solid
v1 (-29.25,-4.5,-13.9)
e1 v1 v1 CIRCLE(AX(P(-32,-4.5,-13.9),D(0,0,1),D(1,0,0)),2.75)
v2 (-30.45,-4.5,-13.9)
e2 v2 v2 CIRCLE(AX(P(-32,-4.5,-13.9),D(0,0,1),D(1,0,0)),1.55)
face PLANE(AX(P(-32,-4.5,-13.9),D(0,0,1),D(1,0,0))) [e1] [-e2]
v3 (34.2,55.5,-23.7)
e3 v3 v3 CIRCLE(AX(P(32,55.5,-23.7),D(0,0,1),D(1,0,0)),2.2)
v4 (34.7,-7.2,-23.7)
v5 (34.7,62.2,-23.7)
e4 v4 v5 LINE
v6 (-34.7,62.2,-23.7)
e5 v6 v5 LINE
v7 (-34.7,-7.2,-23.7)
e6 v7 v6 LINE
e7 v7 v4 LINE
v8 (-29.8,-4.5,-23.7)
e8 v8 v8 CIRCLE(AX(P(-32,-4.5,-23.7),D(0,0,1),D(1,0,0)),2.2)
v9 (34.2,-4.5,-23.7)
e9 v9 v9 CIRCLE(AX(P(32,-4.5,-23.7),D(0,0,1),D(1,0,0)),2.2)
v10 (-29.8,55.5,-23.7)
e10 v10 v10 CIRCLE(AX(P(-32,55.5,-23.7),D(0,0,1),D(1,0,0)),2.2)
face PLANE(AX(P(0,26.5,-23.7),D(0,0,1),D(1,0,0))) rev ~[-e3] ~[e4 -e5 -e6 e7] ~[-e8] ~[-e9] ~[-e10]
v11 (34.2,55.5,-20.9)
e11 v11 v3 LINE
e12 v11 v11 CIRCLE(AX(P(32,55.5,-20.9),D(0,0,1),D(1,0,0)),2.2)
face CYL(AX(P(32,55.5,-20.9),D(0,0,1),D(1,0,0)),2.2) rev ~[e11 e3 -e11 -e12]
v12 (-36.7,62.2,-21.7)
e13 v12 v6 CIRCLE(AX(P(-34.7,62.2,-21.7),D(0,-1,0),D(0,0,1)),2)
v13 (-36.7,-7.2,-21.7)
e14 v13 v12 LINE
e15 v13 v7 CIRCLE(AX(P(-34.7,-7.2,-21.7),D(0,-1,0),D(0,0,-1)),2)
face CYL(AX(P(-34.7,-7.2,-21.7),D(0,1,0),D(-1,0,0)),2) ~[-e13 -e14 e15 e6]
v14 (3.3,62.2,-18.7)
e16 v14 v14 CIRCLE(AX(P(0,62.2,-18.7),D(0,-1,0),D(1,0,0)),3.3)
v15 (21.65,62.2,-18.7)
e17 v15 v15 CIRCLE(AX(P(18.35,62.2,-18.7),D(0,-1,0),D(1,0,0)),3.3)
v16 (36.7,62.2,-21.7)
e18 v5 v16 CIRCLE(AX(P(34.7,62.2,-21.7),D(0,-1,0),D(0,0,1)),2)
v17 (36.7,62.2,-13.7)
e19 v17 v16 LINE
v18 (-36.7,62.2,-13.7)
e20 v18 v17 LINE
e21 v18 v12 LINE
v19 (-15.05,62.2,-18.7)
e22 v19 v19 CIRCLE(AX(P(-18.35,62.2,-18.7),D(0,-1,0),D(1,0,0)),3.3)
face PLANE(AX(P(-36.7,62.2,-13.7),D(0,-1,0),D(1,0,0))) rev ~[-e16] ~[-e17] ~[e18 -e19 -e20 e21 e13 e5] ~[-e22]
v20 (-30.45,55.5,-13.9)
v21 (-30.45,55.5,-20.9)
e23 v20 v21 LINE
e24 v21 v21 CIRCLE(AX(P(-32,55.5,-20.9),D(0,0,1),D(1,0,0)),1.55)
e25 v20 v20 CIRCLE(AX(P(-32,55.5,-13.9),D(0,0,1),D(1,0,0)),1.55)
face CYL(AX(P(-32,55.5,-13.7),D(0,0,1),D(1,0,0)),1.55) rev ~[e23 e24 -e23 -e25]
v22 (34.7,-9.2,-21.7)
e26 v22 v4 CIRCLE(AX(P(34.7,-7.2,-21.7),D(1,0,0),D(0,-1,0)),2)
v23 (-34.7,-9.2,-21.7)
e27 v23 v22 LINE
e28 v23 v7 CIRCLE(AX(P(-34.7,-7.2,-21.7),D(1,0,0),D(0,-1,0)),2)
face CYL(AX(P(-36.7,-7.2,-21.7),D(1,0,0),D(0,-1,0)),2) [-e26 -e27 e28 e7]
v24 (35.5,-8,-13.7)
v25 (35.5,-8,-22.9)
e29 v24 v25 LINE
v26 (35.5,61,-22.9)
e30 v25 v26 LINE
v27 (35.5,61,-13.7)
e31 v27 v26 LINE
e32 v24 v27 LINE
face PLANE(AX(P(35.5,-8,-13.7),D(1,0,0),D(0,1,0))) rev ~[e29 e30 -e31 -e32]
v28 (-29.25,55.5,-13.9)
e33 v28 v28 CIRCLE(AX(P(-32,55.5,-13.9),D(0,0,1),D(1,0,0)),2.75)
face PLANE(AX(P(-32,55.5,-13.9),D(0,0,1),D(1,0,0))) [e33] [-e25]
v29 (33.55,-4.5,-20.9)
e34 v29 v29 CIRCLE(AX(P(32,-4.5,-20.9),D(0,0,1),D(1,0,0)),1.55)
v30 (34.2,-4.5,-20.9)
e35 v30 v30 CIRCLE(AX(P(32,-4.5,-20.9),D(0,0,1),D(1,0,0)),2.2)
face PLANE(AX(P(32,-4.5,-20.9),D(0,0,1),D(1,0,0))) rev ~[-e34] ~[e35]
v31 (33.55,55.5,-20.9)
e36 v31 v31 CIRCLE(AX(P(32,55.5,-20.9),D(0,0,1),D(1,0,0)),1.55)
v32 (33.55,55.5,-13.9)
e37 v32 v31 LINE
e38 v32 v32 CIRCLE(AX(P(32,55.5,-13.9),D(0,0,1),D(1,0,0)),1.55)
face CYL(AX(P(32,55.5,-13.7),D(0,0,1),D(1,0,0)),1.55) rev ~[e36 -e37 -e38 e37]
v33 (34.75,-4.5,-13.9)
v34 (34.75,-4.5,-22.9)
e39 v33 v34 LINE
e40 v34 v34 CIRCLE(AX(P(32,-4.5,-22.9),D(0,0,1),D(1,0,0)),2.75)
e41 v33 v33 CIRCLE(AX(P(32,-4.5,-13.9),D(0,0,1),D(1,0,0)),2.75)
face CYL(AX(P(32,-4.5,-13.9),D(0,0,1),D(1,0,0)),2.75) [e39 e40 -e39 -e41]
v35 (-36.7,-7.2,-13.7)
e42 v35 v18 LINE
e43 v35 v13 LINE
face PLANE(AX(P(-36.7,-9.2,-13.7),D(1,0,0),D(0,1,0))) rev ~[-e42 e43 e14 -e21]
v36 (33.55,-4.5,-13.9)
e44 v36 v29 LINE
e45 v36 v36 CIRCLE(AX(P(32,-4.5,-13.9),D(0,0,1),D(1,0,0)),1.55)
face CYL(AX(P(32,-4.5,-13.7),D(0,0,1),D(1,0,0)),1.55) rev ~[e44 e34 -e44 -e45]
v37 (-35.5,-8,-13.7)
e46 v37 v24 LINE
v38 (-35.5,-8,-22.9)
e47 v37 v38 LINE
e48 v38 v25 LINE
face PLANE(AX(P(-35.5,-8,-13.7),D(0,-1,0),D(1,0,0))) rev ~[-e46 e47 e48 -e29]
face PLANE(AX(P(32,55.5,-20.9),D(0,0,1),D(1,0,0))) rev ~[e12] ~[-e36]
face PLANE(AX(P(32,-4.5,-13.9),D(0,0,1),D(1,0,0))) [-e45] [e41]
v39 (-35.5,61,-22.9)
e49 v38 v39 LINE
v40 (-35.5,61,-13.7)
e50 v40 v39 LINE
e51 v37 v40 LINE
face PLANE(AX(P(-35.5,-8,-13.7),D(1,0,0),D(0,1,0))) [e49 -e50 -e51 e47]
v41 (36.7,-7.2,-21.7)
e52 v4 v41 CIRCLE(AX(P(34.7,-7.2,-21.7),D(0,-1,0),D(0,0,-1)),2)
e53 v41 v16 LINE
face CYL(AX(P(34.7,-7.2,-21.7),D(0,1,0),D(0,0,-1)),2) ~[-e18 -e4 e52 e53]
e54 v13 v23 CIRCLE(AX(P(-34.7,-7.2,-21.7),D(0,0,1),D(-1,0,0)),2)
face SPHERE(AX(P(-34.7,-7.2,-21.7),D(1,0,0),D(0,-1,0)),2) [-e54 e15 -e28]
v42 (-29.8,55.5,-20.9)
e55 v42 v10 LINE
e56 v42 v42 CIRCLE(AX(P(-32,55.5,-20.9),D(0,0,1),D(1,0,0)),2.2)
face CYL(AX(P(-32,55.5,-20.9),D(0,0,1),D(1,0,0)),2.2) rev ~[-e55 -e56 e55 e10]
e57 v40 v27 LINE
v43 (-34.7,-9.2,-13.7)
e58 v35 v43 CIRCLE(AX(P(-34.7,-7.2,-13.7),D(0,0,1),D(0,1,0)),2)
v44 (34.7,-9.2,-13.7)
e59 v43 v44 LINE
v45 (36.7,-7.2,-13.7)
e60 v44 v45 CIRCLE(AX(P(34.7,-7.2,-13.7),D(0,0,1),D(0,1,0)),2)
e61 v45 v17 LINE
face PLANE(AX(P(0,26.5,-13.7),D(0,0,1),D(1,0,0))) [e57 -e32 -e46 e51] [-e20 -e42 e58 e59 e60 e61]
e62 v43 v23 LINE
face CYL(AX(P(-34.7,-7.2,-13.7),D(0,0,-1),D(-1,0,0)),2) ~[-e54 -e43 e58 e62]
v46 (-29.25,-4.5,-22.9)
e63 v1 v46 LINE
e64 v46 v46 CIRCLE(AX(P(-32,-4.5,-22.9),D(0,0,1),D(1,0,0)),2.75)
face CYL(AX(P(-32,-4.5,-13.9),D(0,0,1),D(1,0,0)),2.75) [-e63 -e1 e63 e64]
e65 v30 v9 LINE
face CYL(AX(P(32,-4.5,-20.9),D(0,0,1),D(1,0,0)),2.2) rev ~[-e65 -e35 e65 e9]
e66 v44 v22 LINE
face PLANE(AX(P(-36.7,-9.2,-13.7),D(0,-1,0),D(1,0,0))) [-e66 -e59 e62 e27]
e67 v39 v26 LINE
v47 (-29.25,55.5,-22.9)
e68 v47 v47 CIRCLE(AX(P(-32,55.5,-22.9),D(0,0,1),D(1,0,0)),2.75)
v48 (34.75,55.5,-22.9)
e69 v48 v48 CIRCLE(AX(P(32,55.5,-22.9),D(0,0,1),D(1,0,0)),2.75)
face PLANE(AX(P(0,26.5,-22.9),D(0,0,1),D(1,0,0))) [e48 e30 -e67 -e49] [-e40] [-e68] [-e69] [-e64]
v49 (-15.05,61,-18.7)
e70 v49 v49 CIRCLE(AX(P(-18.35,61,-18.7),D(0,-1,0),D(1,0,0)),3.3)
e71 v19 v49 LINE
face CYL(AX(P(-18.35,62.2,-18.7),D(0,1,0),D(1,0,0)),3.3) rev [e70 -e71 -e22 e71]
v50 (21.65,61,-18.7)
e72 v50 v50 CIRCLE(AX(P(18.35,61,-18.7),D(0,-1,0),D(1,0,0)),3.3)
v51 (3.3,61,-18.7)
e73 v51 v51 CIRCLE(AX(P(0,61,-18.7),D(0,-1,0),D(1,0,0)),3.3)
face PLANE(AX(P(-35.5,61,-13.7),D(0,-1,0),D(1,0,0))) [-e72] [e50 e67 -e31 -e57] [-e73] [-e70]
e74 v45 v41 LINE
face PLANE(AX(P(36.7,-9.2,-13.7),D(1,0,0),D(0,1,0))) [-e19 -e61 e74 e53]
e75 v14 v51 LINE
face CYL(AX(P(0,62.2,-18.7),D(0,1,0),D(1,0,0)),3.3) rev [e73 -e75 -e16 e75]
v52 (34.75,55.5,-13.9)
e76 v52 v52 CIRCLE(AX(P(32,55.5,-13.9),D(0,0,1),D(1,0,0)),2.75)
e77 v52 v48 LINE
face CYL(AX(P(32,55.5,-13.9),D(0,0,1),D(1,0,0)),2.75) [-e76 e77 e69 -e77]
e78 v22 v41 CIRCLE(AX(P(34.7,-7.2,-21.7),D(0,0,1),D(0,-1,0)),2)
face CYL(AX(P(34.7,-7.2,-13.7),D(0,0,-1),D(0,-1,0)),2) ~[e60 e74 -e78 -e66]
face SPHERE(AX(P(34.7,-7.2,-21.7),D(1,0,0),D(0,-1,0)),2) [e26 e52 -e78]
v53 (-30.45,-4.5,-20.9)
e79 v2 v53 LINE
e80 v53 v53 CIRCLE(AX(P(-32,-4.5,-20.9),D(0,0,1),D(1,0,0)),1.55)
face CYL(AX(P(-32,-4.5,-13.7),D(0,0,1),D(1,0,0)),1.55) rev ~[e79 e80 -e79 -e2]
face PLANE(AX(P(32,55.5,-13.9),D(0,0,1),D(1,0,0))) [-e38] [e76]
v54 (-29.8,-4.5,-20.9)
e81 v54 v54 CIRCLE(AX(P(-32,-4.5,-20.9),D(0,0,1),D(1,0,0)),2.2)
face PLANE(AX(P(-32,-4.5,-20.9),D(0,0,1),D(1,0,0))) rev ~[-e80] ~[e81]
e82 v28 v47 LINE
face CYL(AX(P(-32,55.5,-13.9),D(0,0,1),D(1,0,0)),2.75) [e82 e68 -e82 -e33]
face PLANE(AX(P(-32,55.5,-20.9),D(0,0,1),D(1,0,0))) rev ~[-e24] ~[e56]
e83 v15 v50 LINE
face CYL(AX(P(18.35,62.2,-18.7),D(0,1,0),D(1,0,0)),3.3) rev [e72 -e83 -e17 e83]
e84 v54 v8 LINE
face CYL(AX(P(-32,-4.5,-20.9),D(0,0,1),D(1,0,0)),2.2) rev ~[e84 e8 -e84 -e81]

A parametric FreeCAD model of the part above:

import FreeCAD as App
import Part
import Sketcher


def edges_at(feature, points):
    """Names of the edges that pass closest to the given points."""
    edges = feature.Shape.Edges
    near = lambda p: min(range(len(edges)), key=lambda i: edges[i].distToShape(Part.Vertex(*p))[0])
    return sorted({f"Edge{near(p) + 1}" for p in points})


def add_polygon(sketch, points):
    """Adds a closed chain of lines whose ends are joined by coincident constraints."""
    first, n = sketch.GeometryCount, len(points)
    for a, b in zip(points, points[1:] + points[:1]):
        sketch.addGeometry(Part.LineSegment(App.Vector(*a, 0), App.Vector(*b, 0)), False)
    for i in range(n):
        sketch.addConstraint(Sketcher.Constraint("Coincident", first + i, 2, first + (i + 1) % n, 1))

doc = App.newDocument("Part")
body = doc.addObject("PartDesign::Body", "Body")

sketch1 = body.newObject("Sketcher::SketchObject", "Sketch")
sketch1.AttachmentSupport = (doc.getObject("XY_Plane"), [""])
sketch1.MapMode = "FlatFace"
add_polygon(sketch1, [(-37, 62), (-37, -9), (37, -9), (37, 62)])
sketch1.addConstraint([
    Sketcher.Constraint("Vertical", 0),
    Sketcher.Constraint("Horizontal", 1),
    Sketcher.Constraint("Vertical", 2),
    Sketcher.Constraint("Horizontal", 3),
    Sketcher.Constraint("DistanceX", 1, 1, 1, 2, 73.4),
    Sketcher.Constraint("DistanceY", 0, 2, 0, 1, 71.4),
    Sketcher.Constraint("DistanceX", 0, 2, -1, 1, 36.7),
    Sketcher.Constraint("DistanceY", 0, 2, -1, 1, 9.2),
])
pad1 = body.newObject("PartDesign::Pad", "Pad")
pad1.Profile = sketch1
pad1.Length = 10
pad1.Reversed = True

sketch2 = body.newObject("Sketcher::SketchObject", "Sketch001")
sketch2.AttachmentSupport = (doc.getObject("XY_Plane"), [""])
sketch2.MapMode = "FlatFace"
add_polygon(sketch2, [(-36, 61), (-36, -8), (36, -8), (36, 61)])
sketch2.addConstraint([
    Sketcher.Constraint("Vertical", 0),
    Sketcher.Constraint("Horizontal", 1),
    Sketcher.Constraint("Vertical", 2),
    Sketcher.Constraint("Horizontal", 3),
    Sketcher.Constraint("DistanceX", 1, 1, 1, 2, 71.0),
    Sketcher.Constraint("DistanceY", 0, 2, 0, 1, 69.0),
    Sketcher.Constraint("DistanceY", 0, 2, -1, 1, 8.0),
    Sketcher.Constraint("DistanceX", 0, 2, -1, 1, 35.5),
])
pocket1 = body.newObject("PartDesign::Pocket", "Pocket")
pocket1.Profile = sketch2
pocket1.Length = 9.2

sketch3 = body.newObject("Sketcher::SketchObject", "Sketch002")
sketch3.AttachmentSupport = (doc.getObject("XZ_Plane"), [""])
sketch3.MapMode = "FlatFace"
sketch3.AttachmentOffset = App.Placement(App.Vector(0, 0, -62.2), App.Rotation())
sketch3.addGeometry([
    Part.Circle(App.Vector(18.4, -5, 0), App.Vector(0, 0, 1), 3.3),
    Part.Circle(App.Vector(0, -5, 0), App.Vector(0, 0, 1), 3.3),
    Part.Circle(App.Vector(-18.4, -5, 0), App.Vector(0, 0, 1), 3.3),
], False)
sketch3.addConstraint([
    Sketcher.Constraint("Equal", 0, 1),
    Sketcher.Constraint("Equal", 1, 2),
    Sketcher.Constraint("Symmetric", 0, 3, 2, 3, -2),
    Sketcher.Constraint("PointOnObject", 1, 3, -2),
    Sketcher.Constraint("Horizontal", 0, 3, 1, 3),
    Sketcher.Constraint("Diameter", 0, 6.6),
    Sketcher.Constraint("DistanceY", 0, 3, -1, 1, 5.0),
    Sketcher.Constraint("DistanceX", 2, 3, 0, 3, 36.7),
])
pocket2 = body.newObject("PartDesign::Pocket", "Pocket001")
pocket2.Profile = sketch3
pocket2.Length = 1.2
pocket2.Reversed = True

sketch4 = body.newObject("Sketcher::SketchObject", "Sketch003")
sketch4.AttachmentSupport = (doc.getObject("XY_Plane"), [""])
sketch4.MapMode = "FlatFace"
sketch4.AttachmentOffset = App.Placement(App.Vector(0, 0, -0.2), App.Rotation())
sketch4.addGeometry([
    Part.Circle(App.Vector(-32, 55.5, 0), App.Vector(0, 0, 1), 2.8),
    Part.Circle(App.Vector(32, 55.5, 0), App.Vector(0, 0, 1), 2.8),
    Part.Circle(App.Vector(32, -4.5, 0), App.Vector(0, 0, 1), 2.8),
    Part.Circle(App.Vector(-32, -4.5, 0), App.Vector(0, 0, 1), 2.8),
], False)
sketch4.addConstraint([
    Sketcher.Constraint("Equal", 0, 1),
    Sketcher.Constraint("Equal", 1, 2),
    Sketcher.Constraint("Equal", 2, 3),
    Sketcher.Constraint("Symmetric", 0, 3, 1, 3, -2),
    Sketcher.Constraint("Symmetric", 2, 3, 3, 3, -2),
    Sketcher.Constraint("Vertical", 1, 3, 2, 3),
    Sketcher.Constraint("Diameter", 0, 5.5),
    Sketcher.Constraint("DistanceX", 0, 3, -1, 1, 32.0),
    Sketcher.Constraint("DistanceY", 2, 3, 1, 3, 60.0),
    Sketcher.Constraint("DistanceY", -1, 1, 0, 3, 55.5),
])
pad2 = body.newObject("PartDesign::Pad", "Pad001")
pad2.Profile = sketch4
pad2.Length = 9.8
pad2.Reversed = True

sketch5 = body.newObject("Sketcher::SketchObject", "Sketch004")
sketch5.AttachmentSupport = (doc.getObject("XY_Plane"), [""])
sketch5.MapMode = "FlatFace"
sketch5.addGeometry([
    Part.Circle(App.Vector(32, 55.5, 0), App.Vector(0, 0, 1), 1.6),
    Part.Circle(App.Vector(-32, 55.5, 0), App.Vector(0, 0, 1), 1.6),
    Part.Circle(App.Vector(-32, -4.5, 0), App.Vector(0, 0, 1), 1.6),
    Part.Circle(App.Vector(32, -4.5, 0), App.Vector(0, 0, 1), 1.6),
], False)
sketch5.addConstraint([
    Sketcher.Constraint("Equal", 0, 1),
    Sketcher.Constraint("Equal", 1, 2),
    Sketcher.Constraint("Equal", 2, 3),
    Sketcher.Constraint("Symmetric", 0, 3, 1, 3, -2),
    Sketcher.Constraint("Symmetric", 2, 3, 3, 3, -2),
    Sketcher.Constraint("Vertical", 1, 3, 2, 3),
    Sketcher.Constraint("Diameter", 0, 3.1),
    Sketcher.Constraint("DistanceX", -1, 1, 0, 3, 32.0),
    Sketcher.Constraint("DistanceY", 2, 3, 1, 3, 60.0),
    Sketcher.Constraint("DistanceY", -1, 1, 0, 3, 55.5),
])
pocket3 = body.newObject("PartDesign::Pocket", "Pocket002")
pocket3.Profile = sketch5
pocket3.Length = 10

sketch6 = body.newObject("Sketcher::SketchObject", "Sketch005")
sketch6.AttachmentSupport = (doc.getObject("XY_Plane"), [""])
sketch6.MapMode = "FlatFace"
sketch6.AttachmentOffset = App.Placement(App.Vector(0, 0, -7.2), App.Rotation())
sketch6.addGeometry([
    Part.Circle(App.Vector(-32, 55.5, 0), App.Vector(0, 0, 1), 2.2),
    Part.Circle(App.Vector(32, 55.5, 0), App.Vector(0, 0, 1), 2.2),
    Part.Circle(App.Vector(32, -4.5, 0), App.Vector(0, 0, 1), 2.2),
    Part.Circle(App.Vector(-32, -4.5, 0), App.Vector(0, 0, 1), 2.2),
], False)
sketch6.addConstraint([
    Sketcher.Constraint("Equal", 0, 1),
    Sketcher.Constraint("Equal", 1, 2),
    Sketcher.Constraint("Equal", 2, 3),
    Sketcher.Constraint("Symmetric", 0, 3, 1, 3, -2),
    Sketcher.Constraint("Symmetric", 2, 3, 3, 3, -2),
    Sketcher.Constraint("Vertical", 1, 3, 2, 3),
    Sketcher.Constraint("Diameter", 0, 4.4),
    Sketcher.Constraint("DistanceX", 0, 3, -1, 1, 32.0),
    Sketcher.Constraint("DistanceY", 2, 3, 1, 3, 60.0),
    Sketcher.Constraint("DistanceY", -1, 1, 0, 3, 55.5),
])
pocket4 = body.newObject("PartDesign::Pocket", "Pocket003")
pocket4.Profile = sketch6
pocket4.Length = 2.8
doc.recompute()

fillet = body.newObject("PartDesign::Fillet", "Fillet")
fillet.Base = (pocket4, edges_at(pocket4, [(0, -9.2, -10)]))
fillet.Radius = 2
doc.recompute()

fillet2 = body.newObject("PartDesign::Fillet", "Fillet001")
fillet2.Base = (fillet, edges_at(fillet, [(36.7, 27.5, -10)]))
fillet2.Radius = 2
doc.recompute()

fillet3 = body.newObject("PartDesign::Fillet", "Fillet002")
fillet3.Base = (fillet2, edges_at(fillet2, [(-36.7, 27.5, -10)]))
fillet3.Radius = 2
body2 = doc.addObject("PartDesign::Body", "Body001")
doc.recompute()

body.Placement = App.Placement(App.Vector(0, 0, -13.7), App.Rotation(App.Vector(0, 0, 1), 0))
boolean = body2.newObject("PartDesign::Boolean", "Boolean")
boolean.Type = "Fuse"
boolean.addObjects([body])

doc.recompute()
